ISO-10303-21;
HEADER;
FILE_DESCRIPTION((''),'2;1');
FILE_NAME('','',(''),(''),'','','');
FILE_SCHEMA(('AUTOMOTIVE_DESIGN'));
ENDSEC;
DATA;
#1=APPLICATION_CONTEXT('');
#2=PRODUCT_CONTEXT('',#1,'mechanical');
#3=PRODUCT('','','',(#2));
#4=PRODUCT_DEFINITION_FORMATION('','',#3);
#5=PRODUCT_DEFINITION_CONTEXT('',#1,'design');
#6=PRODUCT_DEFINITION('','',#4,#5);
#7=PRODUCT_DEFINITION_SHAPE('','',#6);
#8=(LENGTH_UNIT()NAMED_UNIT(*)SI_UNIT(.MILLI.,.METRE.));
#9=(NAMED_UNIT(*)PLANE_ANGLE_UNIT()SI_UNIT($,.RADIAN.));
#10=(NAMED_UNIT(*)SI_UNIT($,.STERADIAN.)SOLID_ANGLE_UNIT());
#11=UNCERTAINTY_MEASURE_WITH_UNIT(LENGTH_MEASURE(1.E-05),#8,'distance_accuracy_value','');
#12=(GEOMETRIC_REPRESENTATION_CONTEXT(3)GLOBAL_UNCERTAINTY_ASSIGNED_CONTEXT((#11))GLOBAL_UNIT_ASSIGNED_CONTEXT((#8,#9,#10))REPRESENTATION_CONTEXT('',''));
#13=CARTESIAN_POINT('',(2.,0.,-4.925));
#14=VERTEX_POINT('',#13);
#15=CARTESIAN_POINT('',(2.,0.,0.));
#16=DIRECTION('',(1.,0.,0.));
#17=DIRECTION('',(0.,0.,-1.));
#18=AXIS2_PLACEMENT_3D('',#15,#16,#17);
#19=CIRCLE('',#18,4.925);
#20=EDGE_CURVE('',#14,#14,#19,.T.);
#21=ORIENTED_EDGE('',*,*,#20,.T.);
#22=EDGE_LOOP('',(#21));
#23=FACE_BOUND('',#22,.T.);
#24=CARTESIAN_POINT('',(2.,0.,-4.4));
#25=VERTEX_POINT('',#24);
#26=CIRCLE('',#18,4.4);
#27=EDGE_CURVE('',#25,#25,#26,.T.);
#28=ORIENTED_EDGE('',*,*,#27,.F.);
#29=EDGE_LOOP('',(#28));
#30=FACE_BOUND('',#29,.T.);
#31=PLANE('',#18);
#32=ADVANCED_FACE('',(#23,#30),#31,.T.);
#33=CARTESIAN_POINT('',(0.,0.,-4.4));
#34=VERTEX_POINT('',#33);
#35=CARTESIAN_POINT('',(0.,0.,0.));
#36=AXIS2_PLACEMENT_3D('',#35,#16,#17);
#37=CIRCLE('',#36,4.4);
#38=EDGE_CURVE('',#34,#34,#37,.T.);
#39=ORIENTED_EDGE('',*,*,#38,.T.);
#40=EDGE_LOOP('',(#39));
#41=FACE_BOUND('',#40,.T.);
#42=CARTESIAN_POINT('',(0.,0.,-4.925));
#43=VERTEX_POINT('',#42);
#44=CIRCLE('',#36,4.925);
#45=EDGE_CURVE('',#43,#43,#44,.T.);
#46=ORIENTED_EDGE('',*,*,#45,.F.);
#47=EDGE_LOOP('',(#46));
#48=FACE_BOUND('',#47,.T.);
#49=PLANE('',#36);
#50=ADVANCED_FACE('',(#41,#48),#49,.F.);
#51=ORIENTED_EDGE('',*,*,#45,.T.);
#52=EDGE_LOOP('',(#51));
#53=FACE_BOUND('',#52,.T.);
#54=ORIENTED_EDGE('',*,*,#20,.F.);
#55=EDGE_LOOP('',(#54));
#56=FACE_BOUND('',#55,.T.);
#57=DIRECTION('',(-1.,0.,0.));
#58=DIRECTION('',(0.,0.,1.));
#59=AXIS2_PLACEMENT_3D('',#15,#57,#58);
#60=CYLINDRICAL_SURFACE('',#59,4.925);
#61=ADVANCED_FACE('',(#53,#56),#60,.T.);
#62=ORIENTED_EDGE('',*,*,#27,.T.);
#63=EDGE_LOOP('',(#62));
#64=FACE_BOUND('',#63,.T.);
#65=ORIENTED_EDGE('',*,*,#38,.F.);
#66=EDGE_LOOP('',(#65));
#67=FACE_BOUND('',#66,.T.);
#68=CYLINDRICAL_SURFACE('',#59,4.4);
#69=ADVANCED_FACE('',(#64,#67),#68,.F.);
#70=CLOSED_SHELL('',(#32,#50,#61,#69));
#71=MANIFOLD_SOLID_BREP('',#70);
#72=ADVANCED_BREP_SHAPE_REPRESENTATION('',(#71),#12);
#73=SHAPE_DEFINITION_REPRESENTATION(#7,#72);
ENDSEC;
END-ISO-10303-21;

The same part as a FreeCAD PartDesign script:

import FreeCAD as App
import Part
import Sketcher

doc = App.newDocument("Part")
body = doc.addObject("PartDesign::Body", "Body")

# Sketch on YZ plane
sketch1 = body.newObject("Sketcher::SketchObject", "Sketch")
sketch1.AttachmentSupport = (doc.getObject("YZ_Plane"), [""])
sketch1.MapMode = "FlatFace"
sketch1.addGeometry([
    Part.Circle(App.Vector(0, 0, 0), App.Vector(0, 0, 1), 4.9),
    Part.Circle(App.Vector(0, 0, 0), App.Vector(0, 0, 1), 4.4),
], False)
sketch1.addConstraint([
    Sketcher.Constraint("Coincident", 0, 3, -1, 1),
    Sketcher.Constraint("Coincident", 1, 3, -1, 1),
    Sketcher.Constraint("Diameter", 1, 8.8),
    Sketcher.Constraint("Diameter", 0, 9.85),
])
pad1 = body.newObject("PartDesign::Pad", "Pad")
pad1.Profile = sketch1
pad1.Length = 2

doc.recompute()
